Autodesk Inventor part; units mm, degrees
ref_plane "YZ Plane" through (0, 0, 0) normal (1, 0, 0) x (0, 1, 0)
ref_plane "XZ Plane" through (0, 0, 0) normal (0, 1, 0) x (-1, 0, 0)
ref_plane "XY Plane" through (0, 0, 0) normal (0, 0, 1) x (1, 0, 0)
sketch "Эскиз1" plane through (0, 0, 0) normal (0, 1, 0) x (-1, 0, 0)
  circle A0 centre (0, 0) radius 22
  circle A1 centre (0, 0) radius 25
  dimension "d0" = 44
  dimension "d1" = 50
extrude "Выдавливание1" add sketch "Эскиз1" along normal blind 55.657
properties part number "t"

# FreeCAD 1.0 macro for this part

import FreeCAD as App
import Part
import Sketcher
Q = App.Units.Quantity

doc = App.newDocument("Part")
params = doc.addObject("Spreadsheet::Sheet", "Params")
for row, (alias, value) in enumerate([
    ("sketch1_diameter", "50 mm"),
    ("sketch1_diameter2", "44 mm"),
    ("pad1_length", "55.657 mm"),
], start=1):
    params.set(f"A{row}", alias)
    params.set(f"B{row}", "=" + value)
    params.setAlias(f"B{row}", alias)

body = doc.addObject("PartDesign::Body", "Body")

# Sketch on XZ plane
sketch1 = body.newObject("Sketcher::SketchObject", "Sketch")
sketch1.AttachmentSupport = (doc.getObject("XZ_Plane"), [""])
sketch1.MapMode = "FlatFace"
sketch1.addGeometry([
    Part.Circle(App.Vector(0, 0, 0), App.Vector(0, 0, 1), 25),
    Part.Circle(App.Vector(0, 0, 0), App.Vector(0, 0, 1), 22),
], False)
sketch1.addConstraint([
    Sketcher.Constraint("Coincident", 0, 3, -1, 1),
    Sketcher.Constraint("Coincident", 1, 3, -1, 1),
    Sketcher.Constraint("Diameter", 0, Q("50 mm")),
    Sketcher.Constraint("Diameter", 1, Q("44 mm")),
])
sketch1.setExpression("Constraints[2]", "Params.sketch1_diameter")
sketch1.setExpression("Constraints[3]", "Params.sketch1_diameter2")
pad1 = body.newObject("PartDesign::Pad", "Pad")
pad1.Profile = sketch1
pad1.setExpression("Length", "Params.pad1_length")
pad1.Reversed = True

doc.recompute()
